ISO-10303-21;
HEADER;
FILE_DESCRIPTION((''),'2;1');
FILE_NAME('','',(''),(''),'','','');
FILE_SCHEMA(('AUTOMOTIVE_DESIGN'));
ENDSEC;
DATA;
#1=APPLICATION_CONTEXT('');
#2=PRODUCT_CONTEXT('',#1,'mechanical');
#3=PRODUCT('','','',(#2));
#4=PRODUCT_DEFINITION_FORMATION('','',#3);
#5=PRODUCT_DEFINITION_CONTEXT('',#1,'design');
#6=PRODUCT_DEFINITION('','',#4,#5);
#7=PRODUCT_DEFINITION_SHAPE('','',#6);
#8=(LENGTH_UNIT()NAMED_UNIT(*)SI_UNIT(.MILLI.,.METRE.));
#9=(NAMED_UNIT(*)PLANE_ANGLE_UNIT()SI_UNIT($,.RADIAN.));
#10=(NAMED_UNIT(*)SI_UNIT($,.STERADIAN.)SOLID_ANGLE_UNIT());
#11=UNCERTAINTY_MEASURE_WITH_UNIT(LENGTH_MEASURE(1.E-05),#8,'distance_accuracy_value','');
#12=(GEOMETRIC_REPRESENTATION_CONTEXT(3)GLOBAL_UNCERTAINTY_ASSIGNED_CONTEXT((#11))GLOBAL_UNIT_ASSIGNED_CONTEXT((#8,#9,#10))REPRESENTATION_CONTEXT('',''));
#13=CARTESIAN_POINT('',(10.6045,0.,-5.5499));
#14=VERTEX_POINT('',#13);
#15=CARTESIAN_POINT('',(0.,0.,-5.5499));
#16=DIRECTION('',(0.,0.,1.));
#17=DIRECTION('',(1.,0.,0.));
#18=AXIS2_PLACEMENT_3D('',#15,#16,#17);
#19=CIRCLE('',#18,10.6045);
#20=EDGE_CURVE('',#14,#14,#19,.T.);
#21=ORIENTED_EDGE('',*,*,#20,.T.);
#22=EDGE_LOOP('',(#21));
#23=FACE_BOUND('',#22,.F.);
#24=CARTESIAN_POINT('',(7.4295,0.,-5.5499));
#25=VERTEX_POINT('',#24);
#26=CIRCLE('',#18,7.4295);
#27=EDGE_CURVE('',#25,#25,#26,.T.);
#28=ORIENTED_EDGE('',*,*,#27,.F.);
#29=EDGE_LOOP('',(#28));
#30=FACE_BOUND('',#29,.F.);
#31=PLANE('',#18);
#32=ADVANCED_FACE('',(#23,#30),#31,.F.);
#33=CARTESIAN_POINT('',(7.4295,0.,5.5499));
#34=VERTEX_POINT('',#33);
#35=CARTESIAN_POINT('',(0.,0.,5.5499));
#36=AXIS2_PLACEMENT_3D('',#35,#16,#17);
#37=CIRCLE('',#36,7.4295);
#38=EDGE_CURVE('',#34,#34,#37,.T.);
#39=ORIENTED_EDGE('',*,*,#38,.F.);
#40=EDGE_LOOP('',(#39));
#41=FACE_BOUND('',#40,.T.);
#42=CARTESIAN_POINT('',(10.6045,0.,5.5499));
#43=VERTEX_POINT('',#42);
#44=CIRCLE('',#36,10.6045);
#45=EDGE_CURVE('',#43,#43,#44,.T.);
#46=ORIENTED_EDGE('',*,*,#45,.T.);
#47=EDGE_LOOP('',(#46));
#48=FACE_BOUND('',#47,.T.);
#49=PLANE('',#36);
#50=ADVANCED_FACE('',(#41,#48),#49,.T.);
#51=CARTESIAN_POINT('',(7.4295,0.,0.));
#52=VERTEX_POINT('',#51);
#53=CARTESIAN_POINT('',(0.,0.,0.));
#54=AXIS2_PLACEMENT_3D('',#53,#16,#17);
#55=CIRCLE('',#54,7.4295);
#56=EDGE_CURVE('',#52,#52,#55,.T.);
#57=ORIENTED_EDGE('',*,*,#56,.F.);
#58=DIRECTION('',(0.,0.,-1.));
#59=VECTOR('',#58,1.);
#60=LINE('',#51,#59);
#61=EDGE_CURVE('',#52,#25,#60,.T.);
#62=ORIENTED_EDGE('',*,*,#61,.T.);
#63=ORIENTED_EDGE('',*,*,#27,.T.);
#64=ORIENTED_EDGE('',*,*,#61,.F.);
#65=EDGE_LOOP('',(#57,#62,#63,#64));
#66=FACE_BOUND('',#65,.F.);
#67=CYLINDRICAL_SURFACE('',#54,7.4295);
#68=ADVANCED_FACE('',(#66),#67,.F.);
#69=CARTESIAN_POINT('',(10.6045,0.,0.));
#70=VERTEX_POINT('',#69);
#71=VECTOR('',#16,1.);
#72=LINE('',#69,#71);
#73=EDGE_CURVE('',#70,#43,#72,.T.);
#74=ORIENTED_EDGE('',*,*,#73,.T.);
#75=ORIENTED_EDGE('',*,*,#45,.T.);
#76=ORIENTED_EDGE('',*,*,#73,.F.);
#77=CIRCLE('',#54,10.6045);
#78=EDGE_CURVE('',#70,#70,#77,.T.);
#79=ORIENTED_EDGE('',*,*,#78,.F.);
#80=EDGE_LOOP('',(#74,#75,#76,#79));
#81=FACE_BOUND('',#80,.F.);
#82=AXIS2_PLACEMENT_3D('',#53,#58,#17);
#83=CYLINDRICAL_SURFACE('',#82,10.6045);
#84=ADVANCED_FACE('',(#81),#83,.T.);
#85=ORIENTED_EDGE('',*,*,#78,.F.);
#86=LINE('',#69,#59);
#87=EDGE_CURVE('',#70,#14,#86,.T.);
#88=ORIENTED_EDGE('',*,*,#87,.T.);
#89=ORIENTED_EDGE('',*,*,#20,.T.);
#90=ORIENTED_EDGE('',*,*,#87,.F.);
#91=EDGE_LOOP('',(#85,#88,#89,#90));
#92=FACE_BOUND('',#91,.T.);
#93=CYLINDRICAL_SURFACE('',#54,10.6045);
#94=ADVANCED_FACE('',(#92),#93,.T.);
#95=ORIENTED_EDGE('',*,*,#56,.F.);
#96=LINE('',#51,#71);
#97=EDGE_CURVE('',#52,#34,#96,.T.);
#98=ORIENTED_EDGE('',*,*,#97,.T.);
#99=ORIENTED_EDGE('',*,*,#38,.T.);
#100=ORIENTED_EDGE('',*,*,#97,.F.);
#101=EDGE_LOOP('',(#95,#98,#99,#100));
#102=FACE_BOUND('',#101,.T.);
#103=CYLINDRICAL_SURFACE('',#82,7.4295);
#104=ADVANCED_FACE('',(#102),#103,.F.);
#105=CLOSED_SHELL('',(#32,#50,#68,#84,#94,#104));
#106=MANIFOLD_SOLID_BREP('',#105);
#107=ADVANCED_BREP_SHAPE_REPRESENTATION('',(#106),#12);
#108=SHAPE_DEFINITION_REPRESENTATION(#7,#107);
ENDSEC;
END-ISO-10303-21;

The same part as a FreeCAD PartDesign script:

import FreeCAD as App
import Part
import Sketcher
Q = App.Units.Quantity

doc = App.newDocument("Part")
params = doc.addObject("Spreadsheet::Sheet", "Params")
for row, (alias, value) in enumerate([
    ("sketch1_diameter", "0.585 in"),
    ("sketch1_diameter2", "0.835 in"),
    ("pad1_length", "0.437 in"),
], start=1):
    params.set(f"A{row}", alias)
    params.set(f"B{row}", "=" + value)
    params.setAlias(f"B{row}", alias)

body = doc.addObject("PartDesign::Body", "Body")

# Sketch on XY plane
sketch1 = body.newObject("Sketcher::SketchObject", "Sketch")
sketch1.AttachmentSupport = (doc.getObject("XY_Plane"), [""])
sketch1.MapMode = "FlatFace"
sketch1.addGeometry([
    Part.Circle(App.Vector(0, 0, 0), App.Vector(0, 0, 1), 11),
    Part.Circle(App.Vector(0, 0, 0), App.Vector(0, 0, 1), 7),
], False)
sketch1.addConstraint([
    Sketcher.Constraint("Coincident", 0, 3, -1, 1),
    Sketcher.Constraint("Coincident", 1, 3, -1, 1),
    Sketcher.Constraint("Diameter", 1, Q("0.585 in")),
    Sketcher.Constraint("Diameter", 0, Q("0.835 in")),
])
sketch1.setExpression("Constraints[2]", "Params.sketch1_diameter")
sketch1.setExpression("Constraints[3]", "Params.sketch1_diameter2")
pad1 = body.newObject("PartDesign::Pad", "Pad")
pad1.Profile = sketch1
pad1.setExpression("Length", "Params.pad1_length")
pad1.Midplane = True

doc.recompute()
